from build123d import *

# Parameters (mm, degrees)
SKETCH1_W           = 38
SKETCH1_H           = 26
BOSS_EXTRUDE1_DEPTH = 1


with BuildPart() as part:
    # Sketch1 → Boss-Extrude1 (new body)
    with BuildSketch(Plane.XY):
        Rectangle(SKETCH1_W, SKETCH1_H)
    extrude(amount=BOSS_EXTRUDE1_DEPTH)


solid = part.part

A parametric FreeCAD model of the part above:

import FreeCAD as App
import Part
import Sketcher

V = App.Vector

doc = App.newDocument("Part")
body = doc.addObject("PartDesign::Body", "Body")

sketch1 = body.newObject("Sketcher::SketchObject", "Sketch")
sketch1.AttachmentSupport = (doc.getObject("XY_Plane"), [""])
sketch1.MapMode = "FlatFace"
sketch1.addGeometry(Part.LineSegment(V(-19, 13, 0), V(-19, -13, 0)), False)
sketch1.addGeometry(Part.LineSegment(V(-19, -13, 0), V(19, -13, 0)), False)
sketch1.addGeometry(Part.LineSegment(V(19, -13, 0), V(19, 13, 0)), False)
sketch1.addGeometry(Part.LineSegment(V(19, 13, 0), V(-19, 13, 0)), False)
sketch1.addConstraint(Sketcher.Constraint("Coincident", 0, 2, 1, 1))
sketch1.addConstraint(Sketcher.Constraint("Coincident", 1, 2, 2, 1))
sketch1.addConstraint(Sketcher.Constraint("Coincident", 2, 2, 3, 1))
sketch1.addConstraint(Sketcher.Constraint("Coincident", 3, 2, 0, 1))
sketch1.addConstraint(Sketcher.Constraint("Vertical", 0))
sketch1.addConstraint(Sketcher.Constraint("Horizontal", 1))
sketch1.addConstraint(Sketcher.Constraint("Vertical", 2))
sketch1.addConstraint(Sketcher.Constraint("Horizontal", 3))
sketch1.addConstraint(Sketcher.Constraint("Symmetric", 0, 2, 2, 2, -1, 1))
sketch1.addConstraint(Sketcher.Constraint("DistanceX", 1, 1, 1, 2, 38.0))
sketch1.addConstraint(Sketcher.Constraint("DistanceY", 0, 2, 0, 1, 26.0))
pad1 = body.newObject("PartDesign::Pad", "Pad")
pad1.Profile = sketch1
pad1.Length = 1

doc.recompute()
